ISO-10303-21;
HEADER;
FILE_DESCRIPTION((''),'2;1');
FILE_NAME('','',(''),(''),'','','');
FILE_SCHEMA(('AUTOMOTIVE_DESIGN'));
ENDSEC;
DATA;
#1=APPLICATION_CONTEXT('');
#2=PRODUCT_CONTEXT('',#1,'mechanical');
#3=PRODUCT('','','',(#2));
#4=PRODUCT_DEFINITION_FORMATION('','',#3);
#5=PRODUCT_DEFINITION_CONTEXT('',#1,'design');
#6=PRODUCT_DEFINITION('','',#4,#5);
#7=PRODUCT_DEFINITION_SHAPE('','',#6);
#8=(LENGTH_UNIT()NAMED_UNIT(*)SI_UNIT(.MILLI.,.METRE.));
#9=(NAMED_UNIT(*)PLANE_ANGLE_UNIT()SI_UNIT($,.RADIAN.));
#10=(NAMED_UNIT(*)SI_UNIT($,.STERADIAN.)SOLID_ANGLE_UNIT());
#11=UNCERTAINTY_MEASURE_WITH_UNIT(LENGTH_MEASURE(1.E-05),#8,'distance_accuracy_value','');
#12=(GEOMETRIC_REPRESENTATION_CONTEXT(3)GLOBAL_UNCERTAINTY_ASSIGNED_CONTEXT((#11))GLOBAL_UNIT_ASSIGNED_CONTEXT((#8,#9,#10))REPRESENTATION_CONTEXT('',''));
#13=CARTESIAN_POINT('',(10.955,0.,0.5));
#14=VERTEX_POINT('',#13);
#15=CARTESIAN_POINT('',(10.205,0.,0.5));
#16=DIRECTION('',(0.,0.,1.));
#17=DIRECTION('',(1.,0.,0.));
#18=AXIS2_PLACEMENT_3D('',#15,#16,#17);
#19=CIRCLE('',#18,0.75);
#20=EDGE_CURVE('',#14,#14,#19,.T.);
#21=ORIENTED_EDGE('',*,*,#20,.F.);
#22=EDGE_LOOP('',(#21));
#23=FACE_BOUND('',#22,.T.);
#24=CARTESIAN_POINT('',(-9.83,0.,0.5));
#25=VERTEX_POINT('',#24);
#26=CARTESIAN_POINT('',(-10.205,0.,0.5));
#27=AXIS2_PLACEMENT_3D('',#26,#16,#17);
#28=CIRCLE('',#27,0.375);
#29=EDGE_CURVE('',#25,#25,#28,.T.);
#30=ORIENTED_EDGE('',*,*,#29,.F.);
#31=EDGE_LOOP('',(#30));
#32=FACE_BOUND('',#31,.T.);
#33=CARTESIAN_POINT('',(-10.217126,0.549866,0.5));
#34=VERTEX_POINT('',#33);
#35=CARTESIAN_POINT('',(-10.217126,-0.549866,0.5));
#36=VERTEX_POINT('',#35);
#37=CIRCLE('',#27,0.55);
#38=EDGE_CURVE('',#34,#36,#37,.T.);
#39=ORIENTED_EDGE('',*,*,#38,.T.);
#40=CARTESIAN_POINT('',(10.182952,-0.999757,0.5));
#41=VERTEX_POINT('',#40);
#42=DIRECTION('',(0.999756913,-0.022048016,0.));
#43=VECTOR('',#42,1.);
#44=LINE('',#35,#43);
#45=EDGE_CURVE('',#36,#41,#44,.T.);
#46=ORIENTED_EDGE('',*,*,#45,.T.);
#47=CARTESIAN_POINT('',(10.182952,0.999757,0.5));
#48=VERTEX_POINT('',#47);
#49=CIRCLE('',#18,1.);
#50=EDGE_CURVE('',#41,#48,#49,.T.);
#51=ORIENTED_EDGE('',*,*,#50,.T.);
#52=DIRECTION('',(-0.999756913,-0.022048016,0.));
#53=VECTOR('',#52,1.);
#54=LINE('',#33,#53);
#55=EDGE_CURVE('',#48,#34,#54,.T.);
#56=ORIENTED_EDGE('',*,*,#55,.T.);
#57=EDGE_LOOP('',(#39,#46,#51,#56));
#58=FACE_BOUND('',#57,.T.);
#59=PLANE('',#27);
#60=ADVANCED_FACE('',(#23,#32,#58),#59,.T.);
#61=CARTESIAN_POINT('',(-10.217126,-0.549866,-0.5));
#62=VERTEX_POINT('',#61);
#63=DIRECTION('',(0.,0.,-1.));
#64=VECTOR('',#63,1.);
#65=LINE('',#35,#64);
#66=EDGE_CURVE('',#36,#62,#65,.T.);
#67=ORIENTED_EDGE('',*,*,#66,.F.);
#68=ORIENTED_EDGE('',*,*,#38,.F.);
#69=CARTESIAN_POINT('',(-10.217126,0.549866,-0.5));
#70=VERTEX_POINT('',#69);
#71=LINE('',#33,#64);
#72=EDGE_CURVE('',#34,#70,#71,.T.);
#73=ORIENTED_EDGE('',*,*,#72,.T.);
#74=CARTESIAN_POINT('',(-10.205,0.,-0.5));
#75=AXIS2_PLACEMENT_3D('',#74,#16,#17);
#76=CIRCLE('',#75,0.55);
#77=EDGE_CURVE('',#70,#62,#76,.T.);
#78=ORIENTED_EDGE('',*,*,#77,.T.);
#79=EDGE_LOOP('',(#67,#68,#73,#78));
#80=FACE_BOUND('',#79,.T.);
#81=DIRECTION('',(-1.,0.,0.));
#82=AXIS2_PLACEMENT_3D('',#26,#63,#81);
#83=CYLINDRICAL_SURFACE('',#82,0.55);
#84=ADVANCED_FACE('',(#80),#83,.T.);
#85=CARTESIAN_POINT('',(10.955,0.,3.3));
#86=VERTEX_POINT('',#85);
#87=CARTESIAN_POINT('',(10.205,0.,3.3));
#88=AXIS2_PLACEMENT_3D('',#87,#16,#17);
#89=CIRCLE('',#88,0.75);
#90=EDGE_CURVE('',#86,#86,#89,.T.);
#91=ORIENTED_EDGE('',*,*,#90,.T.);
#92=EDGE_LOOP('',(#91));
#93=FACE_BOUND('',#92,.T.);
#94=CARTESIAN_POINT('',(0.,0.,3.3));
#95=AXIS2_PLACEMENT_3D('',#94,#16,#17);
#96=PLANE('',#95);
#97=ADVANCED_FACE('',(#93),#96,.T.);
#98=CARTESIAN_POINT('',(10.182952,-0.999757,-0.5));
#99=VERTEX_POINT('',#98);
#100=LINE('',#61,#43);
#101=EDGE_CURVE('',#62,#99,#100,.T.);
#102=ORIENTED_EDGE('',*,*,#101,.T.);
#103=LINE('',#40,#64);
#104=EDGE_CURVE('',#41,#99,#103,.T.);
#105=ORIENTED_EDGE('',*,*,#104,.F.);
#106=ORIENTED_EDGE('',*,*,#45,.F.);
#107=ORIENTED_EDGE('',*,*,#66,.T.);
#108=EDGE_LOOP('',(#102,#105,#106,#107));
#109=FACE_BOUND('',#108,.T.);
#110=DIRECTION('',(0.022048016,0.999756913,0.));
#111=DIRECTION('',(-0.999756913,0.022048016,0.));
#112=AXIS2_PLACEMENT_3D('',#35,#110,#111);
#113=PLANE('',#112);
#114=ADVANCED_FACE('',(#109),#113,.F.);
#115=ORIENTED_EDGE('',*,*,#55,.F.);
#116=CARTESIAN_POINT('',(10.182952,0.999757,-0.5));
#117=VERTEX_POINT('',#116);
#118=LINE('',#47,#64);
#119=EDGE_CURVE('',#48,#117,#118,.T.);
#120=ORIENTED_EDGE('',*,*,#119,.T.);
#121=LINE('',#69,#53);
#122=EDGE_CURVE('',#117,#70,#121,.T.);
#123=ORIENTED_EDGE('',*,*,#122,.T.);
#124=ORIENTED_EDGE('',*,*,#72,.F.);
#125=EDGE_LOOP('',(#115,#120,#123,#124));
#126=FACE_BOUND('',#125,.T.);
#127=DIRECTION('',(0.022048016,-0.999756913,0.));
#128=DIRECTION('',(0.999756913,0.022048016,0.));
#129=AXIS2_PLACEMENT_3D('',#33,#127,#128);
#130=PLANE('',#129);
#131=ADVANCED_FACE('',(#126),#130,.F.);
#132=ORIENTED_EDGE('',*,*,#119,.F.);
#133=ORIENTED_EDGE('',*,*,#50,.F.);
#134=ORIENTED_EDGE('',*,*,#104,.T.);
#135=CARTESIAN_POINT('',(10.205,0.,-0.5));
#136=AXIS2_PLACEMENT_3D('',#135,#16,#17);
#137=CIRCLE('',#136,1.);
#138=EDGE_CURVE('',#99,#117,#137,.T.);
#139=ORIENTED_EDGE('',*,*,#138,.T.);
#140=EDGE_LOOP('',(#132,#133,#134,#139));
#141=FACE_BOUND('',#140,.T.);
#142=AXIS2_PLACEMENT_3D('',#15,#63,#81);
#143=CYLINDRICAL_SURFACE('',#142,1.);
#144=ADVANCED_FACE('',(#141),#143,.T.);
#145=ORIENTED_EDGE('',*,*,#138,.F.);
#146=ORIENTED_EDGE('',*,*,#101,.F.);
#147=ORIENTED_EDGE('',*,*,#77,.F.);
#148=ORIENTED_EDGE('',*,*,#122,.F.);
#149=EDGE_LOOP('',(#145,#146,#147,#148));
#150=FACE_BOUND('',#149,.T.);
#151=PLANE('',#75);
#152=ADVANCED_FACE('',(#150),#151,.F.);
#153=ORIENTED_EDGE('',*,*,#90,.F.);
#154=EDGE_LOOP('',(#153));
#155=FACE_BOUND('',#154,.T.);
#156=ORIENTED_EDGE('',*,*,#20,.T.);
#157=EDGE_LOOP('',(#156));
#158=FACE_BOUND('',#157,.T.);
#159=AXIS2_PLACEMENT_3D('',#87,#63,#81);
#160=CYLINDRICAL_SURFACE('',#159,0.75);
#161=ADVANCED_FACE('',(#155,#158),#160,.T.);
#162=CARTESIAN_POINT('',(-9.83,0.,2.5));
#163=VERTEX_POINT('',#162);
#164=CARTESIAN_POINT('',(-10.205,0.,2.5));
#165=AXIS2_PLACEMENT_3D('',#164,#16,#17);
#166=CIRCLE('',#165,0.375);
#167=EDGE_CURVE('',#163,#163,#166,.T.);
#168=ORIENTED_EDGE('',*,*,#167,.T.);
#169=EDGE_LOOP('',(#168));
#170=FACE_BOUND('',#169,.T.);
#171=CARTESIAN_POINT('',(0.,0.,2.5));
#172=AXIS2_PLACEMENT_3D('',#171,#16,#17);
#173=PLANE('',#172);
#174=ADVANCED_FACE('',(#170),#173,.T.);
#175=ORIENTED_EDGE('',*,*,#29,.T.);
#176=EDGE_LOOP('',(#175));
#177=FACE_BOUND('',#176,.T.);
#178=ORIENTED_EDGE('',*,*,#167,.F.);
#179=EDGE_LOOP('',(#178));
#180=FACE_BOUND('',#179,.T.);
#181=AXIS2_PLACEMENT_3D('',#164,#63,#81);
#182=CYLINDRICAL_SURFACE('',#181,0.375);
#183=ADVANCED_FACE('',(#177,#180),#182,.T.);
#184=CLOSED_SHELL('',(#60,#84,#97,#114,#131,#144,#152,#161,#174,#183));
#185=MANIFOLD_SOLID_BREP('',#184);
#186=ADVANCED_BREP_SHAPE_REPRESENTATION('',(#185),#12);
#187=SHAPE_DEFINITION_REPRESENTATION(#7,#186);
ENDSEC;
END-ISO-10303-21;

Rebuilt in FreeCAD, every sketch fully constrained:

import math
import FreeCAD as App
import Part
import Sketcher

V = App.Vector
Q = App.Units.Quantity

doc = App.newDocument("Part")
body = doc.addObject("PartDesign::Body", "Body")

# Sketch on XY plane
sketch1 = body.newObject("Sketcher::SketchObject", "Sketch")
sketch1.AttachmentSupport = (doc.getObject("XY_Plane"), [""])
sketch1.MapMode = "FlatFace"
sketch1.addGeometry(Part.LineSegment(V(10.18, 1, 0), V(-10.22, 0.55, 0)), False)
sketch1.addGeometry(Part.ArcOfCircle(Part.Circle(V(-10.21, 0, 0), V(0, 0, 1), 0.55), math.radians(91), math.radians(269)), False)
sketch1.addGeometry(Part.LineSegment(V(-10.22, -0.55, 0), V(10.18, -1, 0)), False)
sketch1.addGeometry(Part.ArcOfCircle(Part.Circle(V(10.21, 0, 0), V(0, 0, 1), 1), math.radians(-91), math.radians(91)), False)
sketch1.addGeometry(Part.Circle(V(10.21, 0, 0), V(0, 0, 1), 0.75), False)
sketch1.addGeometry(Part.Circle(V(-10.21, 0, 0), V(0, 0, 1), 0.38), False)
sketch1.addConstraint(Sketcher.Constraint("Tangent", 0, 2, 1, 1))
sketch1.addConstraint(Sketcher.Constraint("Tangent", 1, 2, 2, 1))
sketch1.addConstraint(Sketcher.Constraint("Tangent", 2, 2, 3, 1))
sketch1.addConstraint(Sketcher.Constraint("Tangent", 3, 2, 0, 1))
sketch1.addConstraint(Sketcher.Constraint("Coincident", 4, 3, 3, 3))
sketch1.addConstraint(Sketcher.Constraint("Coincident", 5, 3, 1, 3))
sketch1.addConstraint(Sketcher.Constraint("Symmetric", 1, 3, 3, 3, -1, 1))
sketch1.addConstraint(Sketcher.Constraint("PointOnObject", 1, 3, -1))
sketch1.addConstraint(Sketcher.Constraint("Radius", 3, Q("1 mm")))
sketch1.addConstraint(Sketcher.Constraint("Diameter", 4, Q("1.5 mm")))
sketch1.addConstraint(Sketcher.Constraint("Diameter", 5, Q("0.75 mm")))
sketch1.addConstraint(Sketcher.Constraint("Radius", 1, Q("0.55 mm")))
sketch1.addConstraint(Sketcher.Constraint("DistanceX", 1, 3, 3, 3, Q("20.41 mm")))
pad1 = body.newObject("PartDesign::Pad", "Pad")
pad1.Profile = sketch1
pad1.Length = 1
pad1.Midplane = True

# Sketch on XY plane
sketch2 = body.newObject("Sketcher::SketchObject", "Sketch001")
sketch2.AttachmentSupport = (doc.getObject("XY_Plane"), [""])
sketch2.MapMode = "FlatFace"
sketch2.addGeometry(Part.Circle(V(-10.21, 0, 0), V(0, 0, 1), 0.38), False)
sketch2.addConstraint(Sketcher.Constraint("PointOnObject", 0, 3, -1))
sketch2.addConstraint(Sketcher.Constraint("Diameter", 0, Q("0.75 mm")))
sketch2.addConstraint(Sketcher.Constraint("DistanceX", 0, 3, -1, 1, Q("10.205 mm")))
pad2 = body.newObject("PartDesign::Pad", "Pad001")
pad2.Profile = sketch2
pad2.Length = 2.5

# Sketch on XY plane
sketch3 = body.newObject("Sketcher::SketchObject", "Sketch002")
sketch3.AttachmentSupport = (doc.getObject("XY_Plane"), [""])
sketch3.MapMode = "FlatFace"
sketch3.addGeometry(Part.Circle(V(10.2, 0, 0), V(0, 0, 1), 0.8), False)
sketch3.addConstraint(Sketcher.Constraint("PointOnObject", 0, 3, -1))
sketch3.addConstraint(Sketcher.Constraint("Diameter", 0, Q("1.5 mm")))
sketch3.addConstraint(Sketcher.Constraint("DistanceX", -1, 1, 0, 3, Q("10.205 mm")))
pad3 = body.newObject("PartDesign::Pad", "Pad002")
pad3.Profile = sketch3
pad3.Length = 3.3

# Sketch on XY plane
sketch4 = body.newObject("Sketcher::SketchObject", "Sketch003")
sketch4.AttachmentSupport = (doc.getObject("XY_Plane"), [""])
sketch4.MapMode = "FlatFace"
sketch4.addGeometry(Part.Circle(V(-10.21, 0, 0), V(0, 0, 1), 0.38), False)
sketch4.addGeometry(Part.Circle(V(10.21, 0, 0), V(0, 0, 1), 0.75), False)
sketch4.addConstraint(Sketcher.Constraint("Symmetric", 0, 3, 1, 3, -1, 1))
sketch4.addConstraint(Sketcher.Constraint("PointOnObject", 0, 3, -1))
sketch4.addConstraint(Sketcher.Constraint("Diameter", 1, Q("1.5 mm")))
sketch4.addConstraint(Sketcher.Constraint("Diameter", 0, Q("0.75 mm")))
sketch4.addConstraint(Sketcher.Constraint("DistanceX", 0, 3, 1, 3, Q("20.41 mm")))
pad4 = body.newObject("PartDesign::Pad", "Pad003")
pad4.Profile = sketch4
pad4.Length = 0.5
pad4.Reversed = True

doc.recompute()
